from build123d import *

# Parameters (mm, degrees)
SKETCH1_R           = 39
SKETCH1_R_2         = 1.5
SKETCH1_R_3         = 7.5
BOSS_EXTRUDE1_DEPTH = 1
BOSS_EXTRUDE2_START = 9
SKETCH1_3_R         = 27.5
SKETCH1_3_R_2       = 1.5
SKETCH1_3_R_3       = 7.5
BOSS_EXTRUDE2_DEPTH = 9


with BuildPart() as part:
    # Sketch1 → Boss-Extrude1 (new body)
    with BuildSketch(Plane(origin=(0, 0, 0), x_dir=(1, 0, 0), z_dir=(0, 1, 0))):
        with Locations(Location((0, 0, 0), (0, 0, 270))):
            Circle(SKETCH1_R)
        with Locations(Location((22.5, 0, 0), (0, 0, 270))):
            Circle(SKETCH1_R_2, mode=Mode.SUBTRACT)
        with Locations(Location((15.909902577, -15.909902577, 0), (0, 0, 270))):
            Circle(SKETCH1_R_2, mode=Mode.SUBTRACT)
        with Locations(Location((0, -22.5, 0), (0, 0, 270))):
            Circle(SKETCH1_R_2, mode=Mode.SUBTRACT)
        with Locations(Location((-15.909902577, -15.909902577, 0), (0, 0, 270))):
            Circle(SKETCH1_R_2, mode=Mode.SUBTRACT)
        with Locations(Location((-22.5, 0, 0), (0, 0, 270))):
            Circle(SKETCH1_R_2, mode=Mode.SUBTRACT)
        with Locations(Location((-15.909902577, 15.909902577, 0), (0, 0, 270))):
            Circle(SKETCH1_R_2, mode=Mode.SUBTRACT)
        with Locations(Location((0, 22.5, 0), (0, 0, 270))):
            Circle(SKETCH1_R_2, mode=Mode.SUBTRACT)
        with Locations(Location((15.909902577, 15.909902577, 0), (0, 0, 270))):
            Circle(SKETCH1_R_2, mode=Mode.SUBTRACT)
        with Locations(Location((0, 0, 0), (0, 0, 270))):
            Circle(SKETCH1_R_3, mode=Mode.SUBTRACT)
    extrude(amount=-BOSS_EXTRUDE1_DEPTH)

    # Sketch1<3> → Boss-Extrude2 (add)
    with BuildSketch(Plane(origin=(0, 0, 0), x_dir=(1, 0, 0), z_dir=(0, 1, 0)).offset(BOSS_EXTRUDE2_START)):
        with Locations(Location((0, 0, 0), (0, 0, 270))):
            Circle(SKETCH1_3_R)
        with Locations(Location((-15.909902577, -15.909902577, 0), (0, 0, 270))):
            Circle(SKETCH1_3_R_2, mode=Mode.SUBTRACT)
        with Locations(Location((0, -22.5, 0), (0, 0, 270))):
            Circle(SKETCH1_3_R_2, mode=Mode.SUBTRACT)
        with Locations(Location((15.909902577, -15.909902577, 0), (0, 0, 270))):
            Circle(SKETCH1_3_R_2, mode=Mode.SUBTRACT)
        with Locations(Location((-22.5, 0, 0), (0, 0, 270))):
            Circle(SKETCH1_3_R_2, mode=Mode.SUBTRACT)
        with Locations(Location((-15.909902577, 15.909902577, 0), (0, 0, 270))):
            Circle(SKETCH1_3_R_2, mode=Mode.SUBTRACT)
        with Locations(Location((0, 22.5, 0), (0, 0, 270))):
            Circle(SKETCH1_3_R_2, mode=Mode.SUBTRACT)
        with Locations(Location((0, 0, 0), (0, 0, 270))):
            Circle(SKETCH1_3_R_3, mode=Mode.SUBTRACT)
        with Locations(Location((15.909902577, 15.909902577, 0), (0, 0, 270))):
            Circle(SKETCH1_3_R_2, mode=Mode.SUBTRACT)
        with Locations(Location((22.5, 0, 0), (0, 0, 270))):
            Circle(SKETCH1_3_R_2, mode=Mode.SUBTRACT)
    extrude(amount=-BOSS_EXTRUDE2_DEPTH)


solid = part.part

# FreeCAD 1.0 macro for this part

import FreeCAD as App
import Part
import Sketcher

doc = App.newDocument("Part")
body = doc.addObject("PartDesign::Body", "Body")

# Sketch on XZ plane
sketch1 = body.newObject("Sketcher::SketchObject", "Sketch")
sketch1.AttachmentSupport = (doc.getObject("XZ_Plane"), [""])
sketch1.MapMode = "FlatFace"
sketch1.addGeometry(Part.Circle(App.Vector(0, 0, 0), App.Vector(0, 0, 1), 39), False)
sketch1.addGeometry(Part.Circle(App.Vector(-15.9, -15.9, 0), App.Vector(0, 0, 1), 1.5), False)
sketch1.addGeometry(Part.Circle(App.Vector(0, -22.5, 0), App.Vector(0, 0, 1), 1.5), False)
sketch1.addGeometry(Part.Circle(App.Vector(-22.5, 0, 0), App.Vector(0, 0, 1), 1.5), False)
sketch1.addGeometry(Part.Circle(App.Vector(-15.9, 15.9, 0), App.Vector(0, 0, 1), 1.5), False)
sketch1.addGeometry(Part.Circle(App.Vector(15.9, -15.9, 0), App.Vector(0, 0, 1), 1.5), False)
sketch1.addGeometry(Part.Circle(App.Vector(22.5, 0, 0), App.Vector(0, 0, 1), 1.5), False)
sketch1.addGeometry(Part.Circle(App.Vector(0, 0, 0), App.Vector(0, 0, 1), 7.5), False)
sketch1.addGeometry(Part.Circle(App.Vector(0, 22.5, 0), App.Vector(0, 0, 1), 1.5), False)
sketch1.addGeometry(Part.Circle(App.Vector(15.9, 15.9, 0), App.Vector(0, 0, 1), 1.5), False)
sketch1.addConstraint(Sketcher.Constraint("Coincident", 0, 3, -1, 1))
sketch1.addConstraint(Sketcher.Constraint("Coincident", 7, 3, -1, 1))
sketch1.addConstraint(Sketcher.Constraint("Equal", 1, 2))
sketch1.addConstraint(Sketcher.Constraint("Equal", 2, 3))
sketch1.addConstraint(Sketcher.Constraint("Equal", 3, 4))
sketch1.addConstraint(Sketcher.Constraint("Equal", 4, 5))
sketch1.addConstraint(Sketcher.Constraint("Equal", 5, 6))
sketch1.addConstraint(Sketcher.Constraint("Equal", 6, 8))
sketch1.addConstraint(Sketcher.Constraint("Equal", 8, 9))
sketch1.addConstraint(Sketcher.Constraint("Symmetric", 4, 3, 5, 3, -1, 1))
sketch1.addConstraint(Sketcher.Constraint("Symmetric", 3, 3, 6, 3, -1, 1))
sketch1.addConstraint(Sketcher.Constraint("Symmetric", 2, 3, 8, 3, -1, 1))
sketch1.addConstraint(Sketcher.Constraint("Symmetric", 1, 3, 9, 3, -1, 1))
sketch1.addConstraint(Sketcher.Constraint("Symmetric", 1, 3, 5, 3, -2))
sketch1.addConstraint(Sketcher.Constraint("PointOnObject", 2, 3, -2))
sketch1.addConstraint(Sketcher.Constraint("PointOnObject", 3, 3, -1))
sketch1.addConstraint(Sketcher.Constraint("Diameter", 0, 78.0))
sketch1.addConstraint(Sketcher.Constraint("Diameter", 1, 3.0))
sketch1.addConstraint(Sketcher.Constraint("Diameter", 7, 15.0))
sketch1.addConstraint(Sketcher.Constraint("DistanceY", 2, 3, -1, 1, 22.5))
sketch1.addConstraint(Sketcher.Constraint("DistanceX", 3, 3, -1, 1, 22.5))
sketch1.addConstraint(Sketcher.Constraint("DistanceX", 1, 3, -1, 1, 15.909903))
sketch1.addConstraint(Sketcher.Constraint("DistanceY", 1, 3, -1, 1, 15.909903))
pad1 = body.newObject("PartDesign::Pad", "Pad")
pad1.Profile = sketch1
pad1.Length = 1

# Sketch on XZ plane
sketch2 = body.newObject("Sketcher::SketchObject", "Sketch001")
sketch2.AttachmentSupport = (doc.getObject("XZ_Plane"), [""])
sketch2.MapMode = "FlatFace"
sketch2.AttachmentOffset = App.Placement(App.Vector(0, 0, -9), App.Rotation())
sketch2.addGeometry(Part.Circle(App.Vector(0, 0, 0), App.Vector(0, 0, 1), 27.5), False)
sketch2.addGeometry(Part.Circle(App.Vector(-15.9, -15.9, 0), App.Vector(0, 0, 1), 1.5), False)
sketch2.addGeometry(Part.Circle(App.Vector(0, -22.5, 0), App.Vector(0, 0, 1), 1.5), False)
sketch2.addGeometry(Part.Circle(App.Vector(-22.5, 0, 0), App.Vector(0, 0, 1), 1.5), False)
sketch2.addGeometry(Part.Circle(App.Vector(-15.9, 15.9, 0), App.Vector(0, 0, 1), 1.5), False)
sketch2.addGeometry(Part.Circle(App.Vector(15.9, -15.9, 0), App.Vector(0, 0, 1), 1.5), False)
sketch2.addGeometry(Part.Circle(App.Vector(22.5, 0, 0), App.Vector(0, 0, 1), 1.5), False)
sketch2.addGeometry(Part.Circle(App.Vector(0, 0, 0), App.Vector(0, 0, 1), 7.5), False)
sketch2.addGeometry(Part.Circle(App.Vector(0, 22.5, 0), App.Vector(0, 0, 1), 1.5), False)
sketch2.addGeometry(Part.Circle(App.Vector(15.9, 15.9, 0), App.Vector(0, 0, 1), 1.5), False)
sketch2.addConstraint(Sketcher.Constraint("Coincident", 0, 3, -1, 1))
sketch2.addConstraint(Sketcher.Constraint("Coincident", 7, 3, -1, 1))
sketch2.addConstraint(Sketcher.Constraint("Equal", 1, 2))
sketch2.addConstraint(Sketcher.Constraint("Equal", 2, 3))
sketch2.addConstraint(Sketcher.Constraint("Equal", 3, 4))
sketch2.addConstraint(Sketcher.Constraint("Equal", 4, 5))
sketch2.addConstraint(Sketcher.Constraint("Equal", 5, 6))
sketch2.addConstraint(Sketcher.Constraint("Equal", 6, 8))
sketch2.addConstraint(Sketcher.Constraint("Equal", 8, 9))
sketch2.addConstraint(Sketcher.Constraint("Symmetric", 4, 3, 5, 3, -1, 1))
sketch2.addConstraint(Sketcher.Constraint("Symmetric", 3, 3, 6, 3, -1, 1))
sketch2.addConstraint(Sketcher.Constraint("Symmetric", 2, 3, 8, 3, -1, 1))
sketch2.addConstraint(Sketcher.Constraint("Symmetric", 1, 3, 9, 3, -1, 1))
sketch2.addConstraint(Sketcher.Constraint("Symmetric", 1, 3, 5, 3, -2))
sketch2.addConstraint(Sketcher.Constraint("PointOnObject", 2, 3, -2))
sketch2.addConstraint(Sketcher.Constraint("PointOnObject", 3, 3, -1))
sketch2.addConstraint(Sketcher.Constraint("Diameter", 0, 55.0))
sketch2.addConstraint(Sketcher.Constraint("Diameter", 1, 3.0))
sketch2.addConstraint(Sketcher.Constraint("Diameter", 7, 15.0))
sketch2.addConstraint(Sketcher.Constraint("DistanceY", 2, 3, -1, 1, 22.5))
sketch2.addConstraint(Sketcher.Constraint("DistanceX", 3, 3, -1, 1, 22.5))
sketch2.addConstraint(Sketcher.Constraint("DistanceX", 1, 3, -1, 1, 15.909903))
sketch2.addConstraint(Sketcher.Constraint("DistanceY", 1, 3, -1, 1, 15.909903))
pad2 = body.newObject("PartDesign::Pad", "Pad001")
pad2.Profile = sketch2
pad2.Length = 9

doc.recompute()
